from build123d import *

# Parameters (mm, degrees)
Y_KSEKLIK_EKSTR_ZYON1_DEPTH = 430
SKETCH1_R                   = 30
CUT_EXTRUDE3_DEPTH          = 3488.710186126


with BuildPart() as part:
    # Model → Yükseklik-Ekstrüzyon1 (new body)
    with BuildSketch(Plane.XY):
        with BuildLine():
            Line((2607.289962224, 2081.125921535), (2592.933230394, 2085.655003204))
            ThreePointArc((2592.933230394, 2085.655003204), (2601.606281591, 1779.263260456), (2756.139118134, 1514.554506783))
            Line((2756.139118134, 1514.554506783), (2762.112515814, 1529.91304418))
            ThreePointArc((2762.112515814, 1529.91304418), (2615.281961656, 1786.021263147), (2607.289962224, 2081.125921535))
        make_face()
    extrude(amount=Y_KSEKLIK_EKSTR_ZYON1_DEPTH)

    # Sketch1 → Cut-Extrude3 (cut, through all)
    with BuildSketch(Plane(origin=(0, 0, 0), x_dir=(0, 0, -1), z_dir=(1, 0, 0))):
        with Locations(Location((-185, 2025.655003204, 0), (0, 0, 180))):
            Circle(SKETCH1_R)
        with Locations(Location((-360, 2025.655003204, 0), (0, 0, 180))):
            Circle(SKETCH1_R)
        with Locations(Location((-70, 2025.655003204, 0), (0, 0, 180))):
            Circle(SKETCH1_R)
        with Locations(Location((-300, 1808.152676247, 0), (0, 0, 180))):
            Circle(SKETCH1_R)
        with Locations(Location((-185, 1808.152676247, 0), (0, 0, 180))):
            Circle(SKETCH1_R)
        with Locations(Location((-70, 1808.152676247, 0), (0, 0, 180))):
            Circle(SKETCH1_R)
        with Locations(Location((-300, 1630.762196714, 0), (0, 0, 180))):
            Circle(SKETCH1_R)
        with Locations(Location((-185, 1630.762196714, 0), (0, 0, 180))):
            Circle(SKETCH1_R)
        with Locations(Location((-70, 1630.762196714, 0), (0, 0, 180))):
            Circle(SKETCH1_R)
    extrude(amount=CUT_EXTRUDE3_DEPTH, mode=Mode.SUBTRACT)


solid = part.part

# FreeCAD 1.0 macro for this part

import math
import FreeCAD as App
import Part
import Sketcher

V = App.Vector
Q = App.Units.Quantity

doc = App.newDocument("Part")
params = doc.addObject("Spreadsheet::Sheet", "Params")
for row, (alias, value) in enumerate([
    ("pad1_length", "430 mm"),
    ("sketch2_diameter", "60 mm"),
], start=1):
    params.set(f"A{row}", alias)
    params.set(f"B{row}", "=" + value)
    params.setAlias(f"B{row}", alias)

body = doc.addObject("PartDesign::Body", "Body")

sketch1 = doc.addObject("Sketcher::SketchObject", "Sketch")
body.addObject(sketch1)
sketch1.AttachmentSupport = (doc.XY_Plane, [""])
sketch1.MapMode = "FlatFace"
sketch1.addGeometry(Part.LineSegment(V(2607.289962, 2081.125922, 0), V(2592.93323, 2085.655003, 0)), False)
sketch1.addGeometry(Part.ArcOfCircle(Part.Circle(V(3197.094019, 1949.438397, 0), V(0, 0, 1), 619.326426), math.radians(167.294306), math.radians(224.602852)), False)
sketch1.addGeometry(Part.LineSegment(V(2756.139118, 1514.554507, 0), V(2762.112516, 1529.913044, 0)), False)
sketch1.addGeometry(Part.ArcOfCircle(Part.Circle(V(3197.094019, 1949.438397, 0), V(0, 0, 1), 604.326426), math.radians(167.413814), math.radians(223.963758)), False)
sketch1.addConstraint(Sketcher.Constraint("Coincident", 0, 2, 1, 1))
sketch1.addConstraint(Sketcher.Constraint("Coincident", 1, 2, 2, 1))
sketch1.addConstraint(Sketcher.Constraint("Coincident", 2, 2, 3, 2))
sketch1.addConstraint(Sketcher.Constraint("Coincident", 3, 1, 0, 1))
sketch1.addConstraint(Sketcher.Constraint("Coincident", 3, 3, 1, 3))
sketch1.addConstraint(Sketcher.Constraint("Radius", 1, Q("619.326426 mm")))
sketch1.addConstraint(Sketcher.Constraint("Radius", 3, Q("604.326426 mm")))
sketch1.addConstraint(Sketcher.Constraint("Distance", 0, Q("15.05418 mm")))
sketch1.addConstraint(Sketcher.Constraint("DistanceX", -1, 1, 1, 3, Q("3197.094019 mm")))
sketch1.addConstraint(Sketcher.Constraint("DistanceX", -1, 1, 0, 2, Q("2592.93323 mm")))
sketch1.addConstraint(Sketcher.Constraint("DistanceY", 2, 2, 0, 2, Q("555.741959 mm")))
sketch1.addConstraint(Sketcher.Constraint("Distance", 2, Q("16.479264 mm")))
sketch1.addConstraint(Sketcher.Constraint("DistanceY", -1, 1, 1, 3, Q("1949.438397 mm")))
pad1 = doc.addObject("PartDesign::Pad", "Pad")
body.addObject(pad1)
pad1.Profile = sketch1
pad1.setExpression("Length", "Params.pad1_length")

sketch2 = doc.addObject("Sketcher::SketchObject", "Sketch001")
body.addObject(sketch2)
sketch2.AttachmentSupport = (doc.YZ_Plane, [""])
sketch2.MapMode = "FlatFace"
sketch2.addGeometry(Part.Circle(V(2026, 185, 0), V(0, 0, 1), 30), False)
sketch2.addGeometry(Part.Circle(V(2026, 360, 0), V(0, 0, 1), 30), False)
sketch2.addGeometry(Part.Circle(V(2026, 70, 0), V(0, 0, 1), 30), False)
sketch2.addGeometry(Part.Circle(V(1808, 300, 0), V(0, 0, 1), 30), False)
sketch2.addGeometry(Part.Circle(V(1808, 185, 0), V(0, 0, 1), 30), False)
sketch2.addGeometry(Part.Circle(V(1808, 70, 0), V(0, 0, 1), 30), False)
sketch2.addGeometry(Part.Circle(V(1631, 300, 0), V(0, 0, 1), 30), False)
sketch2.addGeometry(Part.Circle(V(1631, 185, 0), V(0, 0, 1), 30), False)
sketch2.addGeometry(Part.Circle(V(1631, 70, 0), V(0, 0, 1), 30), False)
sketch2.addConstraint(Sketcher.Constraint("Equal", 0, 1))
sketch2.addConstraint(Sketcher.Constraint("Equal", 1, 2))
sketch2.addConstraint(Sketcher.Constraint("Equal", 2, 3))
sketch2.addConstraint(Sketcher.Constraint("Equal", 3, 4))
sketch2.addConstraint(Sketcher.Constraint("Equal", 4, 5))
sketch2.addConstraint(Sketcher.Constraint("Equal", 5, 6))
sketch2.addConstraint(Sketcher.Constraint("Equal", 6, 7))
sketch2.addConstraint(Sketcher.Constraint("Equal", 7, 8))
sketch2.addConstraint(Sketcher.Constraint("Horizontal", 0, 3, 4, 3))
sketch2.addConstraint(Sketcher.Constraint("Horizontal", 2, 3, 5, 3))
sketch2.addConstraint(Sketcher.Constraint("Horizontal", 3, 3, 6, 3))
sketch2.addConstraint(Sketcher.Constraint("Horizontal", 4, 3, 7, 3))
sketch2.addConstraint(Sketcher.Constraint("Horizontal", 5, 3, 8, 3))
sketch2.addConstraint(Sketcher.Constraint("Vertical", 0, 3, 1, 3))
sketch2.addConstraint(Sketcher.Constraint("Vertical", 1, 3, 2, 3))
sketch2.addConstraint(Sketcher.Constraint("Vertical", 3, 3, 4, 3))
sketch2.addConstraint(Sketcher.Constraint("Vertical", 4, 3, 5, 3))
sketch2.addConstraint(Sketcher.Constraint("Vertical", 6, 3, 7, 3))
sketch2.addConstraint(Sketcher.Constraint("Vertical", 7, 3, 8, 3))
sketch2.addConstraint(Sketcher.Constraint("Diameter", 0, Q("60 mm")))
sketch2.addConstraint(Sketcher.Constraint("DistanceY", -1, 1, 0, 3, Q("185 mm")))
sketch2.addConstraint(Sketcher.Constraint("DistanceY", -1, 1, 1, 3, Q("360 mm")))
sketch2.addConstraint(Sketcher.Constraint("DistanceY", -1, 1, 2, 3, Q("70 mm")))
sketch2.addConstraint(Sketcher.Constraint("DistanceY", -1, 1, 3, 3, Q("300 mm")))
sketch2.addConstraint(Sketcher.Constraint("DistanceX", 6, 3, 3, 3, Q("177.39048 mm")))
sketch2.addConstraint(Sketcher.Constraint("DistanceX", -1, 1, 0, 3, Q("2025.655003 mm")))
sketch2.addConstraint(Sketcher.Constraint("DistanceX", -1, 1, 3, 3, Q("1808.152676 mm")))
sketch2.setExpression("Constraints[19]", "Params.sketch2_diameter")
pocket1 = doc.addObject("PartDesign::Pocket", "Pocket")
body.addObject(pocket1)
pocket1.Profile = sketch2
pocket1.Type = "ThroughAll"
pocket1.Reversed = True

doc.recompute()
